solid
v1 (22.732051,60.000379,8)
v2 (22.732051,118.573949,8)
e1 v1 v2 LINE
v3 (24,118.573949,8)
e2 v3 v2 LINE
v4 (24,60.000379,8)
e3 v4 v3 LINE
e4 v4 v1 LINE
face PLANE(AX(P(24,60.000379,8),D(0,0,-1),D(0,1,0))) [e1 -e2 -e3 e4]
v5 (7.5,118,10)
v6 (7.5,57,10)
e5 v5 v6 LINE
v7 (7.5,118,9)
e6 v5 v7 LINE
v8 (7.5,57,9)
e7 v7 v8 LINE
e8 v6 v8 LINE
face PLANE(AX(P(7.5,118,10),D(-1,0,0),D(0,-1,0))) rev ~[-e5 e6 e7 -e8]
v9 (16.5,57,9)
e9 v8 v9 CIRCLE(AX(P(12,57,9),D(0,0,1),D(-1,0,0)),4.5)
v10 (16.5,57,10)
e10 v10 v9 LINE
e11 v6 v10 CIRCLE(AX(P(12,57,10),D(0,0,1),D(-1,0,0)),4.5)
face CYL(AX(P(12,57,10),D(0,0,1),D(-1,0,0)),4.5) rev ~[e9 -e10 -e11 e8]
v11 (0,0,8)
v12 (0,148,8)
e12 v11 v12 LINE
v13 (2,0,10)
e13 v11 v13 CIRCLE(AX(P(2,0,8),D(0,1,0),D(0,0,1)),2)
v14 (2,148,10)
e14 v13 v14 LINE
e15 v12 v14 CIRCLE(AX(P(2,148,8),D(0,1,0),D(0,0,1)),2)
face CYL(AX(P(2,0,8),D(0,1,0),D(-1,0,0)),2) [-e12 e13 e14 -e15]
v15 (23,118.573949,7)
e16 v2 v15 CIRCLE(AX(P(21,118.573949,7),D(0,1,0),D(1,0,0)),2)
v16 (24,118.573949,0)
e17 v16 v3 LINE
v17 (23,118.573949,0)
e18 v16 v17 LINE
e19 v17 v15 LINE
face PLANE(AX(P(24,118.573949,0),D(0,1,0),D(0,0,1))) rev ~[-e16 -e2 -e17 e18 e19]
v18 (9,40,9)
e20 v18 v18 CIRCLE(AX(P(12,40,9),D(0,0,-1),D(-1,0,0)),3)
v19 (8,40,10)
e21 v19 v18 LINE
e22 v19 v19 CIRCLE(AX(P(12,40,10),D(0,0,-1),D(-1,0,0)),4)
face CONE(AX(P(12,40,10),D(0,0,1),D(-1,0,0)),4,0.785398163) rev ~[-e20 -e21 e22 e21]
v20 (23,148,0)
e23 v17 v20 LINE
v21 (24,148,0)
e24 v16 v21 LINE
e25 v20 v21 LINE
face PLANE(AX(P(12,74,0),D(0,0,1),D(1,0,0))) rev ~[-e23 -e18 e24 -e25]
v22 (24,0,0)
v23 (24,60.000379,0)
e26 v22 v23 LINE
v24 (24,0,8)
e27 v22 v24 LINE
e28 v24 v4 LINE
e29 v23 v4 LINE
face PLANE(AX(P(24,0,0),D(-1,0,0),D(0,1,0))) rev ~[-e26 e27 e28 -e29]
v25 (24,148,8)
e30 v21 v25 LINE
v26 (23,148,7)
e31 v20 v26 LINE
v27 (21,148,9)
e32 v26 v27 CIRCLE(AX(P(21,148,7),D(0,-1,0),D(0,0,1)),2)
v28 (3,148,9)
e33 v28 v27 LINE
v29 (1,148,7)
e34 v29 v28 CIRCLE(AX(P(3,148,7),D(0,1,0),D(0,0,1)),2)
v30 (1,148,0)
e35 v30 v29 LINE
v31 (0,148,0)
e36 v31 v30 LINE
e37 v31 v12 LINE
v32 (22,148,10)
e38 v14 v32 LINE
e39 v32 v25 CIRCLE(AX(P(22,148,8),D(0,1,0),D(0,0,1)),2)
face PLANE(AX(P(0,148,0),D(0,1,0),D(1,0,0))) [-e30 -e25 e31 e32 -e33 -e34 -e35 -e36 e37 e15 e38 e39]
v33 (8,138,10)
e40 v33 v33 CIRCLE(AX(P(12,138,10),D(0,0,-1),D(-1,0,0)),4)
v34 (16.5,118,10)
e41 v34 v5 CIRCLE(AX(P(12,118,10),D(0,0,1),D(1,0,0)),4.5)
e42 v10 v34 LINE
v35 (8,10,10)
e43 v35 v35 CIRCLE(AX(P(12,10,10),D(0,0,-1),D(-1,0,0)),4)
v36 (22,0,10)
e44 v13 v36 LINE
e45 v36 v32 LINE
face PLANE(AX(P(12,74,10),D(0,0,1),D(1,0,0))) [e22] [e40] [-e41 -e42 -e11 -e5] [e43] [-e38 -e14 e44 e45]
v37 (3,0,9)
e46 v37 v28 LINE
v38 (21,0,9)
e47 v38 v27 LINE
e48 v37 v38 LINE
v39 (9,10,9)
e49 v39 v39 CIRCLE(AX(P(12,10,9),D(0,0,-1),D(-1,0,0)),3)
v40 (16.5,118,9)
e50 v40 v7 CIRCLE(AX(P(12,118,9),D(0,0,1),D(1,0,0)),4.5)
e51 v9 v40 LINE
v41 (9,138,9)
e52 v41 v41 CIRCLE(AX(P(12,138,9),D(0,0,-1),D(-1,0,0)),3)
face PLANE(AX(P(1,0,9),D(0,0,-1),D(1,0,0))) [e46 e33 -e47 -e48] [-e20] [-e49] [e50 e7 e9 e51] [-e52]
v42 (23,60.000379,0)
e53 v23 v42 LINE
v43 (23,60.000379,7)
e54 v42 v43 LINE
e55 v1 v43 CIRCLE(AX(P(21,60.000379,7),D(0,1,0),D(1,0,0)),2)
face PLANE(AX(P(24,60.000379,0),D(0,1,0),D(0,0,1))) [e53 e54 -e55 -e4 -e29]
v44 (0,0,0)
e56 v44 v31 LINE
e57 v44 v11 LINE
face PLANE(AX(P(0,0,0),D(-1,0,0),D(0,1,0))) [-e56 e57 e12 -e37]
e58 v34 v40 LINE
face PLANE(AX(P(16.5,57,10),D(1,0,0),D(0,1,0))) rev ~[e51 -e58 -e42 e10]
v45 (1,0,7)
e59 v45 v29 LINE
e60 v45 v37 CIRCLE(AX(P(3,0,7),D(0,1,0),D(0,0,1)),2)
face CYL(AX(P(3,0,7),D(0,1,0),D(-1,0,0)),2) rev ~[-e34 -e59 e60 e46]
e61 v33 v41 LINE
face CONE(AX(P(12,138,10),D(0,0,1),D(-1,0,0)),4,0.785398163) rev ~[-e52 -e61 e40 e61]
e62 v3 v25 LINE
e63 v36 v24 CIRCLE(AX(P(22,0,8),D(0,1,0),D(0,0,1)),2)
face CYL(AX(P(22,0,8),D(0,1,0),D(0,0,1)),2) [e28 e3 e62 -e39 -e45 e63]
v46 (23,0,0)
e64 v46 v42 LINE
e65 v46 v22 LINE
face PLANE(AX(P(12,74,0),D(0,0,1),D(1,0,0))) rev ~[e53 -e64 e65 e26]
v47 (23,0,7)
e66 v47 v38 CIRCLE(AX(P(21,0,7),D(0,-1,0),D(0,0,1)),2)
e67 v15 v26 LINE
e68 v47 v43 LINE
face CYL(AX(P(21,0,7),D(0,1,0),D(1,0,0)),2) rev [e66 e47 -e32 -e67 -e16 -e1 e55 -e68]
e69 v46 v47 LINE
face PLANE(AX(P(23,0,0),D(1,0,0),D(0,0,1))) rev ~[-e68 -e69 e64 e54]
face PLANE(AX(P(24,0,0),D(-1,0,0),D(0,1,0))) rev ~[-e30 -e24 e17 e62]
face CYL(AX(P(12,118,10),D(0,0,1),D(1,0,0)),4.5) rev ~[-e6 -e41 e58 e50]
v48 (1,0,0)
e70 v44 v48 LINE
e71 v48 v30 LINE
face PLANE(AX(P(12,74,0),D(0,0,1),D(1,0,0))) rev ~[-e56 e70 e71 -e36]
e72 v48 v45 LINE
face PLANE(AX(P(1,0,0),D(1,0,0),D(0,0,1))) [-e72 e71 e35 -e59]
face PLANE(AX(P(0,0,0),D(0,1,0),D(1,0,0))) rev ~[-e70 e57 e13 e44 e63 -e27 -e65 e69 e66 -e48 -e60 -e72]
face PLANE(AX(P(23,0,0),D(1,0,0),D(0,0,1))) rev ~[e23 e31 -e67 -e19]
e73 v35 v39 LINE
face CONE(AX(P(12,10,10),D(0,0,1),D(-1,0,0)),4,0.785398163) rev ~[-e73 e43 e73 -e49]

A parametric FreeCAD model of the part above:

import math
import FreeCAD as App
import Part
import Sketcher

V = App.Vector
Q = App.Units.Quantity


def edges_at(feature, points):
    """Names of the edges that pass closest to the given points."""
    edges = feature.Shape.Edges
    near = lambda p: min(range(len(edges)), key=lambda i: edges[i].distToShape(Part.Vertex(*p))[0])
    return sorted({f"Edge{near(p) + 1}" for p in points})


def add_polygon(sketch, points):
    """Adds a closed chain of lines whose ends are joined by coincident constraints."""
    first, n = sketch.GeometryCount, len(points)
    for a, b in zip(points, points[1:] + points[:1]):
        sketch.addGeometry(Part.LineSegment(App.Vector(*a, 0), App.Vector(*b, 0)), False)
    for i in range(n):
        sketch.addConstraint(Sketcher.Constraint("Coincident", first + i, 2, first + (i + 1) % n, 1))

doc = App.newDocument("Part")
params = doc.addObject("Spreadsheet::Sheet", "Params")
for row, (alias, value) in enumerate([
    ("sketch1_width", "24 mm"),
    ("sketch1_height", "148 mm"),
    ("pad1_length", "10 mm"),
    ("fillet_radius", "2 mm"),
    ("sketch2_width", "22 mm"),
    ("sketch2_height", "9 mm"),
    ("fillet2_radius", "2 mm"),
    ("sketch3_radius", "4.5 mm"),
    ("sketch3_height", "61 mm"),
    ("fillet3_radius", "2 mm"),
    ("fillet4_radius", "2 mm"),
    ("sketch4_diameter", "5 mm"),
    ("hole_diameter", "5 mm"),
    ("hole_csink_diameter", "8 mm"),
    ("sketch5_height", "8 mm"),
    ("pocket3_length", "1.268949 mm"),
], start=1):
    params.set(f"A{row}", alias)
    params.set(f"B{row}", "=" + value)
    params.setAlias(f"B{row}", alias)

body = doc.addObject("PartDesign::Body", "Body")

# Sketch on XY plane
sketch1 = doc.addObject("Sketcher::SketchObject", "Sketch")
body.addObject(sketch1)
sketch1.AttachmentSupport = (doc.XY_Plane, [""])
sketch1.MapMode = "FlatFace"
add_polygon(sketch1, [(0, 148), (0, 0), (24, 0), (24, 148)])  # lines 0-3
sketch1.addConstraint(Sketcher.Constraint("Vertical", 0))
sketch1.addConstraint(Sketcher.Constraint("Horizontal", 1))
sketch1.addConstraint(Sketcher.Constraint("Vertical", 2))
sketch1.addConstraint(Sketcher.Constraint("Horizontal", 3))
sketch1.addConstraint(Sketcher.Constraint("Coincident", 0, 2, -1, 1))
sketch1.addConstraint(Sketcher.Constraint("DistanceX", 1, 1, 1, 2, Q("24 mm")))
sketch1.addConstraint(Sketcher.Constraint("DistanceY", 0, 2, 0, 1, Q("148 mm")))
sketch1.setExpression("Constraints[9]", "Params.sketch1_width")
sketch1.setExpression("Constraints[10]", "Params.sketch1_height")
pad1 = doc.addObject("PartDesign::Pad", "Pad")
body.addObject(pad1)
pad1.Profile = sketch1
pad1.setExpression("Length", "Params.pad1_length")
doc.recompute()

fillet = doc.addObject("PartDesign::Fillet", "Fillet")
body.addObject(fillet)
fillet.Base = (pad1, edges_at(pad1, [(0, 74, 10)]))
fillet.setExpression("Radius", "Params.fillet_radius")

# Sketch on XZ plane
sketch2 = doc.addObject("Sketcher::SketchObject", "Sketch001")
body.addObject(sketch2)
sketch2.AttachmentSupport = (doc.XZ_Plane, [""])
sketch2.MapMode = "FlatFace"
add_polygon(sketch2, [(1, 9), (1, 0), (23, 0), (23, 9)])  # lines 0-3
sketch2.addConstraint(Sketcher.Constraint("Vertical", 0))
sketch2.addConstraint(Sketcher.Constraint("Horizontal", 1))
sketch2.addConstraint(Sketcher.Constraint("Vertical", 2))
sketch2.addConstraint(Sketcher.Constraint("Horizontal", 3))
sketch2.addConstraint(Sketcher.Constraint("PointOnObject", 0, 2, -1))
sketch2.addConstraint(Sketcher.Constraint("DistanceX", 1, 1, 1, 2, Q("22 mm")))
sketch2.addConstraint(Sketcher.Constraint("DistanceY", 0, 2, 0, 1, Q("9 mm")))
sketch2.addConstraint(Sketcher.Constraint("DistanceX", -1, 1, 0, 2, Q("1 mm")))
sketch2.setExpression("Constraints[9]", "Params.sketch2_width")
sketch2.setExpression("Constraints[10]", "Params.sketch2_height")
pocket1 = doc.addObject("PartDesign::Pocket", "Pocket")
body.addObject(pocket1)
pocket1.Profile = sketch2
pocket1.Type = "ThroughAll"
doc.recompute()

fillet2 = doc.addObject("PartDesign::Fillet", "Fillet001")
body.addObject(fillet2)
fillet2.Base = (pocket1, edges_at(pocket1, [(1, 74, 9)]))
fillet2.setExpression("Radius", "Params.fillet2_radius")

# Sketch on XY plane
sketch3 = doc.addObject("Sketcher::SketchObject", "Sketch002")
body.addObject(sketch3)
sketch3.AttachmentSupport = (doc.XY_Plane, [""])
sketch3.MapMode = "FlatFace"
sketch3.AttachmentOffset = App.Placement(V(0, 0, 10), App.Rotation())
sketch3.addGeometry(Part.LineSegment(V(16.5, 57, 0), V(16.5, 118, 0)), False)
sketch3.addGeometry(Part.ArcOfCircle(Part.Circle(V(12, 118, 0), V(0, 0, 1), 4.5), math.radians(0), math.radians(180)), False)
sketch3.addGeometry(Part.LineSegment(V(7.5, 118, 0), V(7.5, 57, 0)), False)
sketch3.addGeometry(Part.ArcOfCircle(Part.Circle(V(12, 57, 0), V(0, 0, 1), 4.5), math.radians(180), math.radians(360)), False)
sketch3.addConstraint(Sketcher.Constraint("Tangent", 0, 2, 1, 1))
sketch3.addConstraint(Sketcher.Constraint("Tangent", 1, 2, 2, 1))
sketch3.addConstraint(Sketcher.Constraint("Tangent", 2, 2, 3, 1))
sketch3.addConstraint(Sketcher.Constraint("Tangent", 3, 2, 0, 1))
sketch3.addConstraint(Sketcher.Constraint("Vertical", 0))
sketch3.addConstraint(Sketcher.Constraint("Vertical", 2))
sketch3.addConstraint(Sketcher.Constraint("Radius", 1, Q("4.5 mm")))
sketch3.addConstraint(Sketcher.Constraint("DistanceY", 0, 1, 0, 2, Q("61 mm")))
sketch3.addConstraint(Sketcher.Constraint("DistanceX", -1, 1, 1, 3, Q("12 mm")))
sketch3.addConstraint(Sketcher.Constraint("DistanceY", -1, 1, 1, 3, Q("118 mm")))
sketch3.setExpression("Constraints[6]", "Params.sketch3_radius")
sketch3.setExpression("Constraints[7]", "Params.sketch3_height")
pocket2 = doc.addObject("PartDesign::Pocket", "Pocket001")
body.addObject(pocket2)
pocket2.Profile = sketch3
pocket2.Type = "ThroughAll"
doc.recompute()

fillet3 = doc.addObject("PartDesign::Fillet", "Fillet002")
body.addObject(fillet3)
fillet3.Base = (pocket2, edges_at(pocket2, [(24, 74, 10)]))
fillet3.setExpression("Radius", "Params.fillet3_radius")
doc.recompute()

fillet4 = doc.addObject("PartDesign::Fillet", "Fillet003")
body.addObject(fillet4)
fillet4.Base = (fillet3, edges_at(fillet3, [(23, 74, 9)]))
fillet4.setExpression("Radius", "Params.fillet4_radius")

# Sketch on XY plane
sketch4 = doc.addObject("Sketcher::SketchObject", "Sketch003")
body.addObject(sketch4)
sketch4.AttachmentSupport = (doc.XY_Plane, [""])
sketch4.MapMode = "FlatFace"
sketch4.AttachmentOffset = App.Placement(V(0, 0, 10), App.Rotation())
sketch4.addGeometry(Part.Circle(V(12, 138, 0), V(0, 0, 1), 2.5), False)
sketch4.addGeometry(Part.Circle(V(12, 40, 0), V(0, 0, 1), 2.5), False)
sketch4.addGeometry(Part.Circle(V(12, 10, 0), V(0, 0, 1), 2.5), False)
sketch4.addConstraint(Sketcher.Constraint("Equal", 0, 1))
sketch4.addConstraint(Sketcher.Constraint("Equal", 1, 2))
sketch4.addConstraint(Sketcher.Constraint("Vertical", 0, 3, 1, 3))
sketch4.addConstraint(Sketcher.Constraint("Vertical", 1, 3, 2, 3))
sketch4.addConstraint(Sketcher.Constraint("Diameter", 0, Q("5 mm")))
sketch4.addConstraint(Sketcher.Constraint("DistanceX", -1, 1, 0, 3, Q("12 mm")))
sketch4.addConstraint(Sketcher.Constraint("DistanceY", -1, 1, 0, 3, Q("138 mm")))
sketch4.addConstraint(Sketcher.Constraint("DistanceY", -1, 1, 1, 3, Q("40 mm")))
sketch4.addConstraint(Sketcher.Constraint("DistanceY", -1, 1, 2, 3, Q("10 mm")))
sketch4.setExpression("Constraints[4]", "Params.sketch4_diameter")
doc.recompute()
hole = doc.addObject("PartDesign::Hole", "Hole")
body.addObject(hole)
hole.Profile = sketch4
hole.ThreadType = "None"
hole.setExpression("Diameter", "Params.hole_diameter")
hole.DepthType = "ThroughAll"
hole.HoleCutType = "Countersink"
hole.setExpression("HoleCutDiameter", "Params.hole_csink_diameter")
hole.HoleCutCountersinkAngle = 90

# Sketch on YZ plane
sketch5 = doc.addObject("Sketcher::SketchObject", "Sketch004")
body.addObject(sketch5)
sketch5.AttachmentSupport = (doc.YZ_Plane, [""])
sketch5.MapMode = "FlatFace"
sketch5.AttachmentOffset = App.Placement(V(0, 0, 24), App.Rotation())
add_polygon(sketch5, [(60, 8), (60, 0), (119, 0), (119, 8)])  # lines 0-3
sketch5.addConstraint(Sketcher.Constraint("Vertical", 0))
sketch5.addConstraint(Sketcher.Constraint("Horizontal", 1))
sketch5.addConstraint(Sketcher.Constraint("Vertical", 2))
sketch5.addConstraint(Sketcher.Constraint("Horizontal", 3))
sketch5.addConstraint(Sketcher.Constraint("PointOnObject", 0, 2, -1))
sketch5.addConstraint(Sketcher.Constraint("DistanceY", 0, 2, 0, 1, Q("8 mm")))
sketch5.addConstraint(Sketcher.Constraint("DistanceX", 1, 1, 1, 2, Q("58.57357 mm")))
sketch5.addConstraint(Sketcher.Constraint("DistanceX", -1, 1, 0, 2, Q("60.000379 mm")))
sketch5.setExpression("Constraints[9]", "Params.sketch5_height")
pocket3 = doc.addObject("PartDesign::Pocket", "Pocket002")
body.addObject(pocket3)
pocket3.Profile = sketch5
pocket3.setExpression("Length", "Params.pocket3_length")

doc.recompute()
